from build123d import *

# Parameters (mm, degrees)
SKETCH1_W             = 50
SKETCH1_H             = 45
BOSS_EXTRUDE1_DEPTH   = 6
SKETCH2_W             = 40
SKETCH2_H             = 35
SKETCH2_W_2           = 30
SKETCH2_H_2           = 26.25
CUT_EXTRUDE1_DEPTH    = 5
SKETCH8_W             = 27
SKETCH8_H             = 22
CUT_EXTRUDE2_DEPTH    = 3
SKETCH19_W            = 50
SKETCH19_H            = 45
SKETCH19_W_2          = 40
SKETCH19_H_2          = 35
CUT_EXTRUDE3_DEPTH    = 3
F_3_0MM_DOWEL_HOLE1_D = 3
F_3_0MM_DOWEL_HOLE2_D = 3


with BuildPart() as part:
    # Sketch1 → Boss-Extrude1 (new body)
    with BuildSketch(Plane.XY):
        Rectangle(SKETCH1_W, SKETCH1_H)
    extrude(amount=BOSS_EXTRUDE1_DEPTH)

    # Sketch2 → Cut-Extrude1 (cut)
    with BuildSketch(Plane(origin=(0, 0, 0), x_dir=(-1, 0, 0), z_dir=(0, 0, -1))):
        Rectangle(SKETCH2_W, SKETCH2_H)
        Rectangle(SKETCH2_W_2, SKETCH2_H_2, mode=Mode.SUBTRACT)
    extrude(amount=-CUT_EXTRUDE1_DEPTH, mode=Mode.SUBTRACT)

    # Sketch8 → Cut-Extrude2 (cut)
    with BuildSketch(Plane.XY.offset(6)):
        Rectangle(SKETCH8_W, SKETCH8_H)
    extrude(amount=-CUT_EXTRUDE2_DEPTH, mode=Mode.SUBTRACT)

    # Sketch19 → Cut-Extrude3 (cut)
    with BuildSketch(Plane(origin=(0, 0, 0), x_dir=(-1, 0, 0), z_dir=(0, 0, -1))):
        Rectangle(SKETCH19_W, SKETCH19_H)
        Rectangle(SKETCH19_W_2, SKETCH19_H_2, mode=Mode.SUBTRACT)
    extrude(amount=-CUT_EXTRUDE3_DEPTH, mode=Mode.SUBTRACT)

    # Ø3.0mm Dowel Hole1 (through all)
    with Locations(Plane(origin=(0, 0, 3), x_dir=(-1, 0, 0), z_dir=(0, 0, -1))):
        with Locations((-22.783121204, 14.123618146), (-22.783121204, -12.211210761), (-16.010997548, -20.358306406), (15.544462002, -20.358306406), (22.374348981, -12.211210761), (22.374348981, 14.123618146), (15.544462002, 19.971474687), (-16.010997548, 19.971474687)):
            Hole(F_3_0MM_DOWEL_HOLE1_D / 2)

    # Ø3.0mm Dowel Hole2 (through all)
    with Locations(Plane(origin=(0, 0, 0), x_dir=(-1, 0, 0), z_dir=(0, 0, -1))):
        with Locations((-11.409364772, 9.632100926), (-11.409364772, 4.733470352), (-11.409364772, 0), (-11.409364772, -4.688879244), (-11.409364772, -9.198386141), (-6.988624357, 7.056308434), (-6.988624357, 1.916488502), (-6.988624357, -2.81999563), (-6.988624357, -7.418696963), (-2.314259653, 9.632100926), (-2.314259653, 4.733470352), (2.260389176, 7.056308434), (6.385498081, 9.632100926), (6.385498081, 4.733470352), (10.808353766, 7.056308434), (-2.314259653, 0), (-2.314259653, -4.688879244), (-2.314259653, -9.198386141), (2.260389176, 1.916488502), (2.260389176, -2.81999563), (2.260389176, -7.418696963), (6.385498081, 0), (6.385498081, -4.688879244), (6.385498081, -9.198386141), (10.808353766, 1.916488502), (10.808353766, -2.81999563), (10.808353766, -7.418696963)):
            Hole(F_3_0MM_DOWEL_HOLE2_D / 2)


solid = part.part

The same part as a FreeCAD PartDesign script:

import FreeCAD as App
import Part
import Sketcher
from FreeCAD import Vector
Q = App.Units.Quantity


def add_polygon(sketch, points):
    """Adds a closed chain of lines whose ends are joined by coincident constraints."""
    first, n = sketch.GeometryCount, len(points)
    for a, b in zip(points, points[1:] + points[:1]):
        sketch.addGeometry(Part.LineSegment(App.Vector(*a, 0), App.Vector(*b, 0)), False)
    for i in range(n):
        sketch.addConstraint(Sketcher.Constraint("Coincident", first + i, 2, first + (i + 1) % n, 1))

doc = App.newDocument("Part")
body = doc.addObject("PartDesign::Body", "Body")

# Sketch on XY plane
sketch1 = body.newObject("Sketcher::SketchObject", "Sketch")
sketch1.AttachmentSupport = (doc.getObject("XY_Plane"), [""])
sketch1.MapMode = "FlatFace"
add_polygon(sketch1, [(-25, 22), (-25, -22), (25, -22), (25, 22)])  # lines 0-3
sketch1.addConstraint(Sketcher.Constraint("Vertical", 0))
sketch1.addConstraint(Sketcher.Constraint("Horizontal", 1))
sketch1.addConstraint(Sketcher.Constraint("Vertical", 2))
sketch1.addConstraint(Sketcher.Constraint("Horizontal", 3))
sketch1.addConstraint(Sketcher.Constraint("Symmetric", 0, 2, 2, 2, -1, 1))
sketch1.addConstraint(Sketcher.Constraint("DistanceX", 1, 1, 1, 2, Q("50 mm")))
sketch1.addConstraint(Sketcher.Constraint("DistanceY", 0, 2, 0, 1, Q("45 mm")))
pad1 = body.newObject("PartDesign::Pad", "Pad")
pad1.Profile = sketch1
pad1.Length = 6

# Sketch on XY plane
sketch2 = body.newObject("Sketcher::SketchObject", "Sketch001")
sketch2.AttachmentSupport = (doc.getObject("XY_Plane"), [""])
sketch2.MapMode = "FlatFace"
add_polygon(sketch2, [(20, 18), (20, -18), (-20, -18), (-20, 18)])  # lines 0-3
add_polygon(sketch2, [(-15, -13), (15, -13), (15, 13), (-15, 13)])  # lines 4-7
sketch2.addConstraint(Sketcher.Constraint("Vertical", 0))
sketch2.addConstraint(Sketcher.Constraint("Horizontal", 1))
sketch2.addConstraint(Sketcher.Constraint("Vertical", 2))
sketch2.addConstraint(Sketcher.Constraint("Horizontal", 3))
sketch2.addConstraint(Sketcher.Constraint("Horizontal", 4))
sketch2.addConstraint(Sketcher.Constraint("Vertical", 5))
sketch2.addConstraint(Sketcher.Constraint("Horizontal", 6))
sketch2.addConstraint(Sketcher.Constraint("Vertical", 7))
sketch2.addConstraint(Sketcher.Constraint("Symmetric", 0, 2, 2, 2, -1, 1))
sketch2.addConstraint(Sketcher.Constraint("Symmetric", 4, 2, 6, 2, -1, 1))
sketch2.addConstraint(Sketcher.Constraint("DistanceX", 1, 2, 1, 1, Q("40 mm")))
sketch2.addConstraint(Sketcher.Constraint("DistanceX", 4, 1, 4, 2, Q("30 mm")))
sketch2.addConstraint(Sketcher.Constraint("DistanceY", 0, 2, 0, 1, Q("35 mm")))
sketch2.addConstraint(Sketcher.Constraint("DistanceY", 5, 1, 5, 2, Q("26.25 mm")))
pocket1 = body.newObject("PartDesign::Pocket", "Pocket")
pocket1.Profile = sketch2
pocket1.Length = 5
pocket1.Reversed = True

# Sketch on XY plane
sketch3 = body.newObject("Sketcher::SketchObject", "Sketch002")
sketch3.AttachmentSupport = (doc.getObject("XY_Plane"), [""])
sketch3.MapMode = "FlatFace"
sketch3.AttachmentOffset = App.Placement(Vector(0, 0, 6), App.Rotation())
add_polygon(sketch3, [(-14, 11), (-14, -11), (14, -11), (14, 11)])  # lines 0-3
sketch3.addConstraint(Sketcher.Constraint("Vertical", 0))
sketch3.addConstraint(Sketcher.Constraint("Horizontal", 1))
sketch3.addConstraint(Sketcher.Constraint("Vertical", 2))
sketch3.addConstraint(Sketcher.Constraint("Horizontal", 3))
sketch3.addConstraint(Sketcher.Constraint("Symmetric", 0, 2, 2, 2, -1, 1))
sketch3.addConstraint(Sketcher.Constraint("DistanceX", 1, 1, 1, 2, Q("27 mm")))
sketch3.addConstraint(Sketcher.Constraint("DistanceY", 0, 2, 0, 1, Q("22 mm")))
pocket2 = body.newObject("PartDesign::Pocket", "Pocket001")
pocket2.Profile = sketch3
pocket2.Length = 3

# Sketch on XY plane
sketch4 = body.newObject("Sketcher::SketchObject", "Sketch003")
sketch4.AttachmentSupport = (doc.getObject("XY_Plane"), [""])
sketch4.MapMode = "FlatFace"
add_polygon(sketch4, [(25, 22), (25, -22), (-25, -22), (-25, 22)])  # lines 0-3
add_polygon(sketch4, [(-20, -18), (20, -18), (20, 18), (-20, 18)])  # lines 4-7
sketch4.addConstraint(Sketcher.Constraint("Vertical", 0))
sketch4.addConstraint(Sketcher.Constraint("Horizontal", 1))
sketch4.addConstraint(Sketcher.Constraint("Vertical", 2))
sketch4.addConstraint(Sketcher.Constraint("Horizontal", 3))
sketch4.addConstraint(Sketcher.Constraint("Horizontal", 4))
sketch4.addConstraint(Sketcher.Constraint("Vertical", 5))
sketch4.addConstraint(Sketcher.Constraint("Horizontal", 6))
sketch4.addConstraint(Sketcher.Constraint("Vertical", 7))
sketch4.addConstraint(Sketcher.Constraint("Symmetric", 0, 2, 2, 2, -1, 1))
sketch4.addConstraint(Sketcher.Constraint("Symmetric", 4, 2, 6, 2, -1, 1))
sketch4.addConstraint(Sketcher.Constraint("DistanceX", 1, 2, 1, 1, Q("50 mm")))
sketch4.addConstraint(Sketcher.Constraint("DistanceX", 4, 1, 4, 2, Q("40 mm")))
sketch4.addConstraint(Sketcher.Constraint("DistanceY", 0, 2, 0, 1, Q("45 mm")))
sketch4.addConstraint(Sketcher.Constraint("DistanceY", 5, 1, 5, 2, Q("35 mm")))
pocket3 = body.newObject("PartDesign::Pocket", "Pocket002")
pocket3.Profile = sketch4
pocket3.Length = 3
pocket3.Reversed = True

# Sketch on XY plane
sketch5 = body.newObject("Sketcher::SketchObject", "Sketch004")
sketch5.AttachmentSupport = (doc.getObject("XY_Plane"), [""])
sketch5.MapMode = "FlatFace"
sketch5.AttachmentOffset = App.Placement(Vector(0, 0, 3), App.Rotation())
sketch5.addGeometry(Part.Circle(Vector(22.8, 14.1, 0), Vector(0, 0, 1), 1.5), False)
sketch5.addGeometry(Part.Circle(Vector(22.8, -12.2, 0), Vector(0, 0, 1), 1.5), False)
sketch5.addGeometry(Part.Circle(Vector(16, -20.4, 0), Vector(0, 0, 1), 1.5), False)
sketch5.addGeometry(Part.Circle(Vector(-15.5, -20.4, 0), Vector(0, 0, 1), 1.5), False)
sketch5.addGeometry(Part.Circle(Vector(-22.4, -12.2, 0), Vector(0, 0, 1), 1.5), False)
sketch5.addGeometry(Part.Circle(Vector(-22.4, 14.1, 0), Vector(0, 0, 1), 1.5), False)
sketch5.addGeometry(Part.Circle(Vector(-15.5, 20, 0), Vector(0, 0, 1), 1.5), False)
sketch5.addGeometry(Part.Circle(Vector(16, 20, 0), Vector(0, 0, 1), 1.5), False)
sketch5.addConstraint(Sketcher.Constraint("Equal", 0, 1))
sketch5.addConstraint(Sketcher.Constraint("Equal", 1, 2))
sketch5.addConstraint(Sketcher.Constraint("Equal", 2, 3))
sketch5.addConstraint(Sketcher.Constraint("Equal", 3, 4))
sketch5.addConstraint(Sketcher.Constraint("Equal", 4, 5))
sketch5.addConstraint(Sketcher.Constraint("Equal", 5, 6))
sketch5.addConstraint(Sketcher.Constraint("Equal", 6, 7))
sketch5.addConstraint(Sketcher.Constraint("Horizontal", 2, 3, 3, 3))
sketch5.addConstraint(Sketcher.Constraint("Horizontal", 1, 3, 4, 3))
sketch5.addConstraint(Sketcher.Constraint("Horizontal", 0, 3, 5, 3))
sketch5.addConstraint(Sketcher.Constraint("Horizontal", 6, 3, 7, 3))
sketch5.addConstraint(Sketcher.Constraint("Vertical", 0, 3, 1, 3))
sketch5.addConstraint(Sketcher.Constraint("Vertical", 4, 3, 5, 3))
sketch5.addConstraint(Sketcher.Constraint("Vertical", 3, 3, 6, 3))
sketch5.addConstraint(Sketcher.Constraint("Vertical", 2, 3, 7, 3))
sketch5.addConstraint(Sketcher.Constraint("Diameter", 0, Q("3 mm")))
sketch5.addConstraint(Sketcher.Constraint("DistanceX", -1, 1, 0, 3, Q("22.783121 mm")))
sketch5.addConstraint(Sketcher.Constraint("DistanceY", -1, 1, 0, 3, Q("14.123618 mm")))
sketch5.addConstraint(Sketcher.Constraint("DistanceY", 1, 3, -1, 1, Q("12.211211 mm")))
sketch5.addConstraint(Sketcher.Constraint("DistanceX", 4, 3, -1, 1, Q("22.374349 mm")))
sketch5.addConstraint(Sketcher.Constraint("DistanceX", 3, 3, 2, 3, Q("31.55546 mm")))
sketch5.addConstraint(Sketcher.Constraint("DistanceY", 3, 3, 6, 3, Q("40.329781 mm")))
sketch5.addConstraint(Sketcher.Constraint("DistanceX", -1, 1, 2, 3, Q("16.010998 mm")))
sketch5.addConstraint(Sketcher.Constraint("DistanceY", 2, 3, -1, 1, Q("20.358306 mm")))
doc.recompute()
hole = body.newObject("PartDesign::Hole", "Hole")
hole.Profile = sketch5
hole.ThreadType = "None"
hole.Diameter = 3
hole.DepthType = "ThroughAll"
hole.Reversed = True

# Sketch on XY plane
sketch6 = body.newObject("Sketcher::SketchObject", "Sketch005")
sketch6.AttachmentSupport = (doc.getObject("XY_Plane"), [""])
sketch6.MapMode = "FlatFace"
sketch6.addGeometry(Part.Circle(Vector(11.4, 9.6, 0), Vector(0, 0, 1), 1.5), False)
sketch6.addGeometry(Part.Circle(Vector(11.4, 4.7, 0), Vector(0, 0, 1), 1.5), False)
sketch6.addGeometry(Part.Circle(Vector(11.4, 0, 0), Vector(0, 0, 1), 1.5), False)
sketch6.addGeometry(Part.Circle(Vector(11.4, -4.7, 0), Vector(0, 0, 1), 1.5), False)
sketch6.addGeometry(Part.Circle(Vector(11.4, -9.2, 0), Vector(0, 0, 1), 1.5), False)
sketch6.addGeometry(Part.Circle(Vector(7, 7.1, 0), Vector(0, 0, 1), 1.5), False)
sketch6.addGeometry(Part.Circle(Vector(7, 1.9, 0), Vector(0, 0, 1), 1.5), False)
sketch6.addGeometry(Part.Circle(Vector(7, -2.8, 0), Vector(0, 0, 1), 1.5), False)
sketch6.addGeometry(Part.Circle(Vector(7, -7.4, 0), Vector(0, 0, 1), 1.5), False)
sketch6.addGeometry(Part.Circle(Vector(2.3, 9.6, 0), Vector(0, 0, 1), 1.5), False)
sketch6.addGeometry(Part.Circle(Vector(2.3, 4.7, 0), Vector(0, 0, 1), 1.5), False)
sketch6.addGeometry(Part.Circle(Vector(-2.3, 7.1, 0), Vector(0, 0, 1), 1.5), False)
sketch6.addGeometry(Part.Circle(Vector(-6.4, 9.6, 0), Vector(0, 0, 1), 1.5), False)
sketch6.addGeometry(Part.Circle(Vector(-6.4, 4.7, 0), Vector(0, 0, 1), 1.5), False)
sketch6.addGeometry(Part.Circle(Vector(-10.8, 7.1, 0), Vector(0, 0, 1), 1.5), False)
sketch6.addGeometry(Part.Circle(Vector(2.3, 0, 0), Vector(0, 0, 1), 1.5), False)
sketch6.addGeometry(Part.Circle(Vector(2.3, -4.7, 0), Vector(0, 0, 1), 1.5), False)
sketch6.addGeometry(Part.Circle(Vector(2.3, -9.2, 0), Vector(0, 0, 1), 1.5), False)
sketch6.addGeometry(Part.Circle(Vector(-2.3, 1.9, 0), Vector(0, 0, 1), 1.5), False)
sketch6.addGeometry(Part.Circle(Vector(-2.3, -2.8, 0), Vector(0, 0, 1), 1.5), False)
sketch6.addGeometry(Part.Circle(Vector(-2.3, -7.4, 0), Vector(0, 0, 1), 1.5), False)
sketch6.addGeometry(Part.Circle(Vector(-6.4, 0, 0), Vector(0, 0, 1), 1.5), False)
sketch6.addGeometry(Part.Circle(Vector(-6.4, -4.7, 0), Vector(0, 0, 1), 1.5), False)
sketch6.addGeometry(Part.Circle(Vector(-6.4, -9.2, 0), Vector(0, 0, 1), 1.5), False)
sketch6.addGeometry(Part.Circle(Vector(-10.8, 1.9, 0), Vector(0, 0, 1), 1.5), False)
sketch6.addGeometry(Part.Circle(Vector(-10.8, -2.8, 0), Vector(0, 0, 1), 1.5), False)
sketch6.addGeometry(Part.Circle(Vector(-10.8, -7.4, 0), Vector(0, 0, 1), 1.5), False)
sketch6.addConstraint(Sketcher.Constraint("Equal", 0, 1))
sketch6.addConstraint(Sketcher.Constraint("Equal", 1, 2))
sketch6.addConstraint(Sketcher.Constraint("Equal", 2, 3))
sketch6.addConstraint(Sketcher.Constraint("Equal", 3, 4))
sketch6.addConstraint(Sketcher.Constraint("Equal", 4, 5))
sketch6.addConstraint(Sketcher.Constraint("Equal", 5, 6))
sketch6.addConstraint(Sketcher.Constraint("Equal", 6, 7))
sketch6.addConstraint(Sketcher.Constraint("Equal", 7, 8))
sketch6.addConstraint(Sketcher.Constraint("Equal", 8, 9))
sketch6.addConstraint(Sketcher.Constraint("Equal", 9, 10))
sketch6.addConstraint(Sketcher.Constraint("Equal", 10, 11))
sketch6.addConstraint(Sketcher.Constraint("Equal", 11, 12))
sketch6.addConstraint(Sketcher.Constraint("Equal", 12, 13))
sketch6.addConstraint(Sketcher.Constraint("Equal", 13, 14))
sketch6.addConstraint(Sketcher.Constraint("Equal", 14, 15))
sketch6.addConstraint(Sketcher.Constraint("Equal", 15, 16))
sketch6.addConstraint(Sketcher.Constraint("Equal", 16, 17))
sketch6.addConstraint(Sketcher.Constraint("Equal", 17, 18))
sketch6.addConstraint(Sketcher.Constraint("Equal", 18, 19))
sketch6.addConstraint(Sketcher.Constraint("Equal", 19, 20))
sketch6.addConstraint(Sketcher.Constraint("Equal", 20, 21))
sketch6.addConstraint(Sketcher.Constraint("Equal", 21, 22))
sketch6.addConstraint(Sketcher.Constraint("Equal", 22, 23))
sketch6.addConstraint(Sketcher.Constraint("Equal", 23, 24))
sketch6.addConstraint(Sketcher.Constraint("Equal", 24, 25))
sketch6.addConstraint(Sketcher.Constraint("Equal", 25, 26))
sketch6.addConstraint(Sketcher.Constraint("PointOnObject", 2, 3, -1))
sketch6.addConstraint(Sketcher.Constraint("PointOnObject", 15, 3, -1))
sketch6.addConstraint(Sketcher.Constraint("PointOnObject", 21, 3, -1))
sketch6.addConstraint(Sketcher.Constraint("Horizontal", 0, 3, 9, 3))
sketch6.addConstraint(Sketcher.Constraint("Horizontal", 1, 3, 10, 3))
sketch6.addConstraint(Sketcher.Constraint("Horizontal", 5, 3, 11, 3))
sketch6.addConstraint(Sketcher.Constraint("Horizontal", 9, 3, 12, 3))
sketch6.addConstraint(Sketcher.Constraint("Horizontal", 10, 3, 13, 3))
sketch6.addConstraint(Sketcher.Constraint("Horizontal", 11, 3, 14, 3))
sketch6.addConstraint(Sketcher.Constraint("Horizontal", 3, 3, 16, 3))
sketch6.addConstraint(Sketcher.Constraint("Horizontal", 4, 3, 17, 3))
sketch6.addConstraint(Sketcher.Constraint("Horizontal", 6, 3, 18, 3))
sketch6.addConstraint(Sketcher.Constraint("Horizontal", 7, 3, 19, 3))
sketch6.addConstraint(Sketcher.Constraint("Horizontal", 8, 3, 20, 3))
sketch6.addConstraint(Sketcher.Constraint("Horizontal", 16, 3, 22, 3))
sketch6.addConstraint(Sketcher.Constraint("Horizontal", 17, 3, 23, 3))
sketch6.addConstraint(Sketcher.Constraint("Horizontal", 18, 3, 24, 3))
sketch6.addConstraint(Sketcher.Constraint("Horizontal", 19, 3, 25, 3))
sketch6.addConstraint(Sketcher.Constraint("Horizontal", 20, 3, 26, 3))
sketch6.addConstraint(Sketcher.Constraint("Vertical", 0, 3, 1, 3))
sketch6.addConstraint(Sketcher.Constraint("Vertical", 1, 3, 2, 3))
sketch6.addConstraint(Sketcher.Constraint("Vertical", 2, 3, 3, 3))
sketch6.addConstraint(Sketcher.Constraint("Vertical", 3, 3, 4, 3))
sketch6.addConstraint(Sketcher.Constraint("Vertical", 5, 3, 6, 3))
sketch6.addConstraint(Sketcher.Constraint("Vertical", 6, 3, 7, 3))
sketch6.addConstraint(Sketcher.Constraint("Vertical", 7, 3, 8, 3))
sketch6.addConstraint(Sketcher.Constraint("Vertical", 9, 3, 10, 3))
sketch6.addConstraint(Sketcher.Constraint("Vertical", 12, 3, 13, 3))
sketch6.addConstraint(Sketcher.Constraint("Vertical", 10, 3, 15, 3))
sketch6.addConstraint(Sketcher.Constraint("Vertical", 15, 3, 16, 3))
sketch6.addConstraint(Sketcher.Constraint("Vertical", 16, 3, 17, 3))
sketch6.addConstraint(Sketcher.Constraint("Vertical", 11, 3, 18, 3))
sketch6.addConstraint(Sketcher.Constraint("Vertical", 18, 3, 19, 3))
sketch6.addConstraint(Sketcher.Constraint("Vertical", 19, 3, 20, 3))
sketch6.addConstraint(Sketcher.Constraint("Vertical", 13, 3, 21, 3))
sketch6.addConstraint(Sketcher.Constraint("Vertical", 21, 3, 22, 3))
sketch6.addConstraint(Sketcher.Constraint("Vertical", 22, 3, 23, 3))
sketch6.addConstraint(Sketcher.Constraint("Vertical", 14, 3, 24, 3))
sketch6.addConstraint(Sketcher.Constraint("Vertical", 24, 3, 25, 3))
sketch6.addConstraint(Sketcher.Constraint("Vertical", 25, 3, 26, 3))
sketch6.addConstraint(Sketcher.Constraint("Diameter", 0, Q("3 mm")))
sketch6.addConstraint(Sketcher.Constraint("DistanceY", -1, 1, 0, 3, Q("9.632101 mm")))
sketch6.addConstraint(Sketcher.Constraint("DistanceX", 12, 3, -1, 1, Q("6.385498 mm")))
sketch6.addConstraint(Sketcher.Constraint("DistanceY", 8, 3, 7, 3, Q("4.598701 mm")))
sketch6.addConstraint(Sketcher.Constraint("DistanceY", -1, 1, 1, 3, Q("4.73347 mm")))
sketch6.addConstraint(Sketcher.Constraint("DistanceY", 3, 3, -1, 1, Q("4.688879 mm")))
sketch6.addConstraint(Sketcher.Constraint("DistanceY", -1, 1, 5, 3, Q("7.056308 mm")))
sketch6.addConstraint(Sketcher.Constraint("DistanceY", -1, 1, 6, 3, Q("1.916489 mm")))
sketch6.addConstraint(Sketcher.Constraint("DistanceX", -1, 1, 9, 3, Q("2.31426 mm")))
sketch6.addConstraint(Sketcher.Constraint("DistanceX", 11, 3, -1, 1, Q("2.260389 mm")))
sketch6.addConstraint(Sketcher.Constraint("DistanceX", 5, 3, 1, 3, Q("4.42074 mm")))
sketch6.addConstraint(Sketcher.Constraint("DistanceY", 4, 3, 7, 3, Q("6.378391 mm")))
sketch6.addConstraint(Sketcher.Constraint("DistanceX", -1, 1, 0, 3, Q("11.409365 mm")))
sketch6.addConstraint(Sketcher.Constraint("DistanceY", 4, 3, -1, 1, Q("9.198386 mm")))
sketch6.addConstraint(Sketcher.Constraint("DistanceX", 14, 3, -1, 1, Q("10.808354 mm")))
doc.recompute()
hole2 = body.newObject("PartDesign::Hole", "Hole001")
hole2.Profile = sketch6
hole2.ThreadType = "None"
hole2.Diameter = 3
hole2.DepthType = "ThroughAll"
hole2.Reversed = True

doc.recompute()
